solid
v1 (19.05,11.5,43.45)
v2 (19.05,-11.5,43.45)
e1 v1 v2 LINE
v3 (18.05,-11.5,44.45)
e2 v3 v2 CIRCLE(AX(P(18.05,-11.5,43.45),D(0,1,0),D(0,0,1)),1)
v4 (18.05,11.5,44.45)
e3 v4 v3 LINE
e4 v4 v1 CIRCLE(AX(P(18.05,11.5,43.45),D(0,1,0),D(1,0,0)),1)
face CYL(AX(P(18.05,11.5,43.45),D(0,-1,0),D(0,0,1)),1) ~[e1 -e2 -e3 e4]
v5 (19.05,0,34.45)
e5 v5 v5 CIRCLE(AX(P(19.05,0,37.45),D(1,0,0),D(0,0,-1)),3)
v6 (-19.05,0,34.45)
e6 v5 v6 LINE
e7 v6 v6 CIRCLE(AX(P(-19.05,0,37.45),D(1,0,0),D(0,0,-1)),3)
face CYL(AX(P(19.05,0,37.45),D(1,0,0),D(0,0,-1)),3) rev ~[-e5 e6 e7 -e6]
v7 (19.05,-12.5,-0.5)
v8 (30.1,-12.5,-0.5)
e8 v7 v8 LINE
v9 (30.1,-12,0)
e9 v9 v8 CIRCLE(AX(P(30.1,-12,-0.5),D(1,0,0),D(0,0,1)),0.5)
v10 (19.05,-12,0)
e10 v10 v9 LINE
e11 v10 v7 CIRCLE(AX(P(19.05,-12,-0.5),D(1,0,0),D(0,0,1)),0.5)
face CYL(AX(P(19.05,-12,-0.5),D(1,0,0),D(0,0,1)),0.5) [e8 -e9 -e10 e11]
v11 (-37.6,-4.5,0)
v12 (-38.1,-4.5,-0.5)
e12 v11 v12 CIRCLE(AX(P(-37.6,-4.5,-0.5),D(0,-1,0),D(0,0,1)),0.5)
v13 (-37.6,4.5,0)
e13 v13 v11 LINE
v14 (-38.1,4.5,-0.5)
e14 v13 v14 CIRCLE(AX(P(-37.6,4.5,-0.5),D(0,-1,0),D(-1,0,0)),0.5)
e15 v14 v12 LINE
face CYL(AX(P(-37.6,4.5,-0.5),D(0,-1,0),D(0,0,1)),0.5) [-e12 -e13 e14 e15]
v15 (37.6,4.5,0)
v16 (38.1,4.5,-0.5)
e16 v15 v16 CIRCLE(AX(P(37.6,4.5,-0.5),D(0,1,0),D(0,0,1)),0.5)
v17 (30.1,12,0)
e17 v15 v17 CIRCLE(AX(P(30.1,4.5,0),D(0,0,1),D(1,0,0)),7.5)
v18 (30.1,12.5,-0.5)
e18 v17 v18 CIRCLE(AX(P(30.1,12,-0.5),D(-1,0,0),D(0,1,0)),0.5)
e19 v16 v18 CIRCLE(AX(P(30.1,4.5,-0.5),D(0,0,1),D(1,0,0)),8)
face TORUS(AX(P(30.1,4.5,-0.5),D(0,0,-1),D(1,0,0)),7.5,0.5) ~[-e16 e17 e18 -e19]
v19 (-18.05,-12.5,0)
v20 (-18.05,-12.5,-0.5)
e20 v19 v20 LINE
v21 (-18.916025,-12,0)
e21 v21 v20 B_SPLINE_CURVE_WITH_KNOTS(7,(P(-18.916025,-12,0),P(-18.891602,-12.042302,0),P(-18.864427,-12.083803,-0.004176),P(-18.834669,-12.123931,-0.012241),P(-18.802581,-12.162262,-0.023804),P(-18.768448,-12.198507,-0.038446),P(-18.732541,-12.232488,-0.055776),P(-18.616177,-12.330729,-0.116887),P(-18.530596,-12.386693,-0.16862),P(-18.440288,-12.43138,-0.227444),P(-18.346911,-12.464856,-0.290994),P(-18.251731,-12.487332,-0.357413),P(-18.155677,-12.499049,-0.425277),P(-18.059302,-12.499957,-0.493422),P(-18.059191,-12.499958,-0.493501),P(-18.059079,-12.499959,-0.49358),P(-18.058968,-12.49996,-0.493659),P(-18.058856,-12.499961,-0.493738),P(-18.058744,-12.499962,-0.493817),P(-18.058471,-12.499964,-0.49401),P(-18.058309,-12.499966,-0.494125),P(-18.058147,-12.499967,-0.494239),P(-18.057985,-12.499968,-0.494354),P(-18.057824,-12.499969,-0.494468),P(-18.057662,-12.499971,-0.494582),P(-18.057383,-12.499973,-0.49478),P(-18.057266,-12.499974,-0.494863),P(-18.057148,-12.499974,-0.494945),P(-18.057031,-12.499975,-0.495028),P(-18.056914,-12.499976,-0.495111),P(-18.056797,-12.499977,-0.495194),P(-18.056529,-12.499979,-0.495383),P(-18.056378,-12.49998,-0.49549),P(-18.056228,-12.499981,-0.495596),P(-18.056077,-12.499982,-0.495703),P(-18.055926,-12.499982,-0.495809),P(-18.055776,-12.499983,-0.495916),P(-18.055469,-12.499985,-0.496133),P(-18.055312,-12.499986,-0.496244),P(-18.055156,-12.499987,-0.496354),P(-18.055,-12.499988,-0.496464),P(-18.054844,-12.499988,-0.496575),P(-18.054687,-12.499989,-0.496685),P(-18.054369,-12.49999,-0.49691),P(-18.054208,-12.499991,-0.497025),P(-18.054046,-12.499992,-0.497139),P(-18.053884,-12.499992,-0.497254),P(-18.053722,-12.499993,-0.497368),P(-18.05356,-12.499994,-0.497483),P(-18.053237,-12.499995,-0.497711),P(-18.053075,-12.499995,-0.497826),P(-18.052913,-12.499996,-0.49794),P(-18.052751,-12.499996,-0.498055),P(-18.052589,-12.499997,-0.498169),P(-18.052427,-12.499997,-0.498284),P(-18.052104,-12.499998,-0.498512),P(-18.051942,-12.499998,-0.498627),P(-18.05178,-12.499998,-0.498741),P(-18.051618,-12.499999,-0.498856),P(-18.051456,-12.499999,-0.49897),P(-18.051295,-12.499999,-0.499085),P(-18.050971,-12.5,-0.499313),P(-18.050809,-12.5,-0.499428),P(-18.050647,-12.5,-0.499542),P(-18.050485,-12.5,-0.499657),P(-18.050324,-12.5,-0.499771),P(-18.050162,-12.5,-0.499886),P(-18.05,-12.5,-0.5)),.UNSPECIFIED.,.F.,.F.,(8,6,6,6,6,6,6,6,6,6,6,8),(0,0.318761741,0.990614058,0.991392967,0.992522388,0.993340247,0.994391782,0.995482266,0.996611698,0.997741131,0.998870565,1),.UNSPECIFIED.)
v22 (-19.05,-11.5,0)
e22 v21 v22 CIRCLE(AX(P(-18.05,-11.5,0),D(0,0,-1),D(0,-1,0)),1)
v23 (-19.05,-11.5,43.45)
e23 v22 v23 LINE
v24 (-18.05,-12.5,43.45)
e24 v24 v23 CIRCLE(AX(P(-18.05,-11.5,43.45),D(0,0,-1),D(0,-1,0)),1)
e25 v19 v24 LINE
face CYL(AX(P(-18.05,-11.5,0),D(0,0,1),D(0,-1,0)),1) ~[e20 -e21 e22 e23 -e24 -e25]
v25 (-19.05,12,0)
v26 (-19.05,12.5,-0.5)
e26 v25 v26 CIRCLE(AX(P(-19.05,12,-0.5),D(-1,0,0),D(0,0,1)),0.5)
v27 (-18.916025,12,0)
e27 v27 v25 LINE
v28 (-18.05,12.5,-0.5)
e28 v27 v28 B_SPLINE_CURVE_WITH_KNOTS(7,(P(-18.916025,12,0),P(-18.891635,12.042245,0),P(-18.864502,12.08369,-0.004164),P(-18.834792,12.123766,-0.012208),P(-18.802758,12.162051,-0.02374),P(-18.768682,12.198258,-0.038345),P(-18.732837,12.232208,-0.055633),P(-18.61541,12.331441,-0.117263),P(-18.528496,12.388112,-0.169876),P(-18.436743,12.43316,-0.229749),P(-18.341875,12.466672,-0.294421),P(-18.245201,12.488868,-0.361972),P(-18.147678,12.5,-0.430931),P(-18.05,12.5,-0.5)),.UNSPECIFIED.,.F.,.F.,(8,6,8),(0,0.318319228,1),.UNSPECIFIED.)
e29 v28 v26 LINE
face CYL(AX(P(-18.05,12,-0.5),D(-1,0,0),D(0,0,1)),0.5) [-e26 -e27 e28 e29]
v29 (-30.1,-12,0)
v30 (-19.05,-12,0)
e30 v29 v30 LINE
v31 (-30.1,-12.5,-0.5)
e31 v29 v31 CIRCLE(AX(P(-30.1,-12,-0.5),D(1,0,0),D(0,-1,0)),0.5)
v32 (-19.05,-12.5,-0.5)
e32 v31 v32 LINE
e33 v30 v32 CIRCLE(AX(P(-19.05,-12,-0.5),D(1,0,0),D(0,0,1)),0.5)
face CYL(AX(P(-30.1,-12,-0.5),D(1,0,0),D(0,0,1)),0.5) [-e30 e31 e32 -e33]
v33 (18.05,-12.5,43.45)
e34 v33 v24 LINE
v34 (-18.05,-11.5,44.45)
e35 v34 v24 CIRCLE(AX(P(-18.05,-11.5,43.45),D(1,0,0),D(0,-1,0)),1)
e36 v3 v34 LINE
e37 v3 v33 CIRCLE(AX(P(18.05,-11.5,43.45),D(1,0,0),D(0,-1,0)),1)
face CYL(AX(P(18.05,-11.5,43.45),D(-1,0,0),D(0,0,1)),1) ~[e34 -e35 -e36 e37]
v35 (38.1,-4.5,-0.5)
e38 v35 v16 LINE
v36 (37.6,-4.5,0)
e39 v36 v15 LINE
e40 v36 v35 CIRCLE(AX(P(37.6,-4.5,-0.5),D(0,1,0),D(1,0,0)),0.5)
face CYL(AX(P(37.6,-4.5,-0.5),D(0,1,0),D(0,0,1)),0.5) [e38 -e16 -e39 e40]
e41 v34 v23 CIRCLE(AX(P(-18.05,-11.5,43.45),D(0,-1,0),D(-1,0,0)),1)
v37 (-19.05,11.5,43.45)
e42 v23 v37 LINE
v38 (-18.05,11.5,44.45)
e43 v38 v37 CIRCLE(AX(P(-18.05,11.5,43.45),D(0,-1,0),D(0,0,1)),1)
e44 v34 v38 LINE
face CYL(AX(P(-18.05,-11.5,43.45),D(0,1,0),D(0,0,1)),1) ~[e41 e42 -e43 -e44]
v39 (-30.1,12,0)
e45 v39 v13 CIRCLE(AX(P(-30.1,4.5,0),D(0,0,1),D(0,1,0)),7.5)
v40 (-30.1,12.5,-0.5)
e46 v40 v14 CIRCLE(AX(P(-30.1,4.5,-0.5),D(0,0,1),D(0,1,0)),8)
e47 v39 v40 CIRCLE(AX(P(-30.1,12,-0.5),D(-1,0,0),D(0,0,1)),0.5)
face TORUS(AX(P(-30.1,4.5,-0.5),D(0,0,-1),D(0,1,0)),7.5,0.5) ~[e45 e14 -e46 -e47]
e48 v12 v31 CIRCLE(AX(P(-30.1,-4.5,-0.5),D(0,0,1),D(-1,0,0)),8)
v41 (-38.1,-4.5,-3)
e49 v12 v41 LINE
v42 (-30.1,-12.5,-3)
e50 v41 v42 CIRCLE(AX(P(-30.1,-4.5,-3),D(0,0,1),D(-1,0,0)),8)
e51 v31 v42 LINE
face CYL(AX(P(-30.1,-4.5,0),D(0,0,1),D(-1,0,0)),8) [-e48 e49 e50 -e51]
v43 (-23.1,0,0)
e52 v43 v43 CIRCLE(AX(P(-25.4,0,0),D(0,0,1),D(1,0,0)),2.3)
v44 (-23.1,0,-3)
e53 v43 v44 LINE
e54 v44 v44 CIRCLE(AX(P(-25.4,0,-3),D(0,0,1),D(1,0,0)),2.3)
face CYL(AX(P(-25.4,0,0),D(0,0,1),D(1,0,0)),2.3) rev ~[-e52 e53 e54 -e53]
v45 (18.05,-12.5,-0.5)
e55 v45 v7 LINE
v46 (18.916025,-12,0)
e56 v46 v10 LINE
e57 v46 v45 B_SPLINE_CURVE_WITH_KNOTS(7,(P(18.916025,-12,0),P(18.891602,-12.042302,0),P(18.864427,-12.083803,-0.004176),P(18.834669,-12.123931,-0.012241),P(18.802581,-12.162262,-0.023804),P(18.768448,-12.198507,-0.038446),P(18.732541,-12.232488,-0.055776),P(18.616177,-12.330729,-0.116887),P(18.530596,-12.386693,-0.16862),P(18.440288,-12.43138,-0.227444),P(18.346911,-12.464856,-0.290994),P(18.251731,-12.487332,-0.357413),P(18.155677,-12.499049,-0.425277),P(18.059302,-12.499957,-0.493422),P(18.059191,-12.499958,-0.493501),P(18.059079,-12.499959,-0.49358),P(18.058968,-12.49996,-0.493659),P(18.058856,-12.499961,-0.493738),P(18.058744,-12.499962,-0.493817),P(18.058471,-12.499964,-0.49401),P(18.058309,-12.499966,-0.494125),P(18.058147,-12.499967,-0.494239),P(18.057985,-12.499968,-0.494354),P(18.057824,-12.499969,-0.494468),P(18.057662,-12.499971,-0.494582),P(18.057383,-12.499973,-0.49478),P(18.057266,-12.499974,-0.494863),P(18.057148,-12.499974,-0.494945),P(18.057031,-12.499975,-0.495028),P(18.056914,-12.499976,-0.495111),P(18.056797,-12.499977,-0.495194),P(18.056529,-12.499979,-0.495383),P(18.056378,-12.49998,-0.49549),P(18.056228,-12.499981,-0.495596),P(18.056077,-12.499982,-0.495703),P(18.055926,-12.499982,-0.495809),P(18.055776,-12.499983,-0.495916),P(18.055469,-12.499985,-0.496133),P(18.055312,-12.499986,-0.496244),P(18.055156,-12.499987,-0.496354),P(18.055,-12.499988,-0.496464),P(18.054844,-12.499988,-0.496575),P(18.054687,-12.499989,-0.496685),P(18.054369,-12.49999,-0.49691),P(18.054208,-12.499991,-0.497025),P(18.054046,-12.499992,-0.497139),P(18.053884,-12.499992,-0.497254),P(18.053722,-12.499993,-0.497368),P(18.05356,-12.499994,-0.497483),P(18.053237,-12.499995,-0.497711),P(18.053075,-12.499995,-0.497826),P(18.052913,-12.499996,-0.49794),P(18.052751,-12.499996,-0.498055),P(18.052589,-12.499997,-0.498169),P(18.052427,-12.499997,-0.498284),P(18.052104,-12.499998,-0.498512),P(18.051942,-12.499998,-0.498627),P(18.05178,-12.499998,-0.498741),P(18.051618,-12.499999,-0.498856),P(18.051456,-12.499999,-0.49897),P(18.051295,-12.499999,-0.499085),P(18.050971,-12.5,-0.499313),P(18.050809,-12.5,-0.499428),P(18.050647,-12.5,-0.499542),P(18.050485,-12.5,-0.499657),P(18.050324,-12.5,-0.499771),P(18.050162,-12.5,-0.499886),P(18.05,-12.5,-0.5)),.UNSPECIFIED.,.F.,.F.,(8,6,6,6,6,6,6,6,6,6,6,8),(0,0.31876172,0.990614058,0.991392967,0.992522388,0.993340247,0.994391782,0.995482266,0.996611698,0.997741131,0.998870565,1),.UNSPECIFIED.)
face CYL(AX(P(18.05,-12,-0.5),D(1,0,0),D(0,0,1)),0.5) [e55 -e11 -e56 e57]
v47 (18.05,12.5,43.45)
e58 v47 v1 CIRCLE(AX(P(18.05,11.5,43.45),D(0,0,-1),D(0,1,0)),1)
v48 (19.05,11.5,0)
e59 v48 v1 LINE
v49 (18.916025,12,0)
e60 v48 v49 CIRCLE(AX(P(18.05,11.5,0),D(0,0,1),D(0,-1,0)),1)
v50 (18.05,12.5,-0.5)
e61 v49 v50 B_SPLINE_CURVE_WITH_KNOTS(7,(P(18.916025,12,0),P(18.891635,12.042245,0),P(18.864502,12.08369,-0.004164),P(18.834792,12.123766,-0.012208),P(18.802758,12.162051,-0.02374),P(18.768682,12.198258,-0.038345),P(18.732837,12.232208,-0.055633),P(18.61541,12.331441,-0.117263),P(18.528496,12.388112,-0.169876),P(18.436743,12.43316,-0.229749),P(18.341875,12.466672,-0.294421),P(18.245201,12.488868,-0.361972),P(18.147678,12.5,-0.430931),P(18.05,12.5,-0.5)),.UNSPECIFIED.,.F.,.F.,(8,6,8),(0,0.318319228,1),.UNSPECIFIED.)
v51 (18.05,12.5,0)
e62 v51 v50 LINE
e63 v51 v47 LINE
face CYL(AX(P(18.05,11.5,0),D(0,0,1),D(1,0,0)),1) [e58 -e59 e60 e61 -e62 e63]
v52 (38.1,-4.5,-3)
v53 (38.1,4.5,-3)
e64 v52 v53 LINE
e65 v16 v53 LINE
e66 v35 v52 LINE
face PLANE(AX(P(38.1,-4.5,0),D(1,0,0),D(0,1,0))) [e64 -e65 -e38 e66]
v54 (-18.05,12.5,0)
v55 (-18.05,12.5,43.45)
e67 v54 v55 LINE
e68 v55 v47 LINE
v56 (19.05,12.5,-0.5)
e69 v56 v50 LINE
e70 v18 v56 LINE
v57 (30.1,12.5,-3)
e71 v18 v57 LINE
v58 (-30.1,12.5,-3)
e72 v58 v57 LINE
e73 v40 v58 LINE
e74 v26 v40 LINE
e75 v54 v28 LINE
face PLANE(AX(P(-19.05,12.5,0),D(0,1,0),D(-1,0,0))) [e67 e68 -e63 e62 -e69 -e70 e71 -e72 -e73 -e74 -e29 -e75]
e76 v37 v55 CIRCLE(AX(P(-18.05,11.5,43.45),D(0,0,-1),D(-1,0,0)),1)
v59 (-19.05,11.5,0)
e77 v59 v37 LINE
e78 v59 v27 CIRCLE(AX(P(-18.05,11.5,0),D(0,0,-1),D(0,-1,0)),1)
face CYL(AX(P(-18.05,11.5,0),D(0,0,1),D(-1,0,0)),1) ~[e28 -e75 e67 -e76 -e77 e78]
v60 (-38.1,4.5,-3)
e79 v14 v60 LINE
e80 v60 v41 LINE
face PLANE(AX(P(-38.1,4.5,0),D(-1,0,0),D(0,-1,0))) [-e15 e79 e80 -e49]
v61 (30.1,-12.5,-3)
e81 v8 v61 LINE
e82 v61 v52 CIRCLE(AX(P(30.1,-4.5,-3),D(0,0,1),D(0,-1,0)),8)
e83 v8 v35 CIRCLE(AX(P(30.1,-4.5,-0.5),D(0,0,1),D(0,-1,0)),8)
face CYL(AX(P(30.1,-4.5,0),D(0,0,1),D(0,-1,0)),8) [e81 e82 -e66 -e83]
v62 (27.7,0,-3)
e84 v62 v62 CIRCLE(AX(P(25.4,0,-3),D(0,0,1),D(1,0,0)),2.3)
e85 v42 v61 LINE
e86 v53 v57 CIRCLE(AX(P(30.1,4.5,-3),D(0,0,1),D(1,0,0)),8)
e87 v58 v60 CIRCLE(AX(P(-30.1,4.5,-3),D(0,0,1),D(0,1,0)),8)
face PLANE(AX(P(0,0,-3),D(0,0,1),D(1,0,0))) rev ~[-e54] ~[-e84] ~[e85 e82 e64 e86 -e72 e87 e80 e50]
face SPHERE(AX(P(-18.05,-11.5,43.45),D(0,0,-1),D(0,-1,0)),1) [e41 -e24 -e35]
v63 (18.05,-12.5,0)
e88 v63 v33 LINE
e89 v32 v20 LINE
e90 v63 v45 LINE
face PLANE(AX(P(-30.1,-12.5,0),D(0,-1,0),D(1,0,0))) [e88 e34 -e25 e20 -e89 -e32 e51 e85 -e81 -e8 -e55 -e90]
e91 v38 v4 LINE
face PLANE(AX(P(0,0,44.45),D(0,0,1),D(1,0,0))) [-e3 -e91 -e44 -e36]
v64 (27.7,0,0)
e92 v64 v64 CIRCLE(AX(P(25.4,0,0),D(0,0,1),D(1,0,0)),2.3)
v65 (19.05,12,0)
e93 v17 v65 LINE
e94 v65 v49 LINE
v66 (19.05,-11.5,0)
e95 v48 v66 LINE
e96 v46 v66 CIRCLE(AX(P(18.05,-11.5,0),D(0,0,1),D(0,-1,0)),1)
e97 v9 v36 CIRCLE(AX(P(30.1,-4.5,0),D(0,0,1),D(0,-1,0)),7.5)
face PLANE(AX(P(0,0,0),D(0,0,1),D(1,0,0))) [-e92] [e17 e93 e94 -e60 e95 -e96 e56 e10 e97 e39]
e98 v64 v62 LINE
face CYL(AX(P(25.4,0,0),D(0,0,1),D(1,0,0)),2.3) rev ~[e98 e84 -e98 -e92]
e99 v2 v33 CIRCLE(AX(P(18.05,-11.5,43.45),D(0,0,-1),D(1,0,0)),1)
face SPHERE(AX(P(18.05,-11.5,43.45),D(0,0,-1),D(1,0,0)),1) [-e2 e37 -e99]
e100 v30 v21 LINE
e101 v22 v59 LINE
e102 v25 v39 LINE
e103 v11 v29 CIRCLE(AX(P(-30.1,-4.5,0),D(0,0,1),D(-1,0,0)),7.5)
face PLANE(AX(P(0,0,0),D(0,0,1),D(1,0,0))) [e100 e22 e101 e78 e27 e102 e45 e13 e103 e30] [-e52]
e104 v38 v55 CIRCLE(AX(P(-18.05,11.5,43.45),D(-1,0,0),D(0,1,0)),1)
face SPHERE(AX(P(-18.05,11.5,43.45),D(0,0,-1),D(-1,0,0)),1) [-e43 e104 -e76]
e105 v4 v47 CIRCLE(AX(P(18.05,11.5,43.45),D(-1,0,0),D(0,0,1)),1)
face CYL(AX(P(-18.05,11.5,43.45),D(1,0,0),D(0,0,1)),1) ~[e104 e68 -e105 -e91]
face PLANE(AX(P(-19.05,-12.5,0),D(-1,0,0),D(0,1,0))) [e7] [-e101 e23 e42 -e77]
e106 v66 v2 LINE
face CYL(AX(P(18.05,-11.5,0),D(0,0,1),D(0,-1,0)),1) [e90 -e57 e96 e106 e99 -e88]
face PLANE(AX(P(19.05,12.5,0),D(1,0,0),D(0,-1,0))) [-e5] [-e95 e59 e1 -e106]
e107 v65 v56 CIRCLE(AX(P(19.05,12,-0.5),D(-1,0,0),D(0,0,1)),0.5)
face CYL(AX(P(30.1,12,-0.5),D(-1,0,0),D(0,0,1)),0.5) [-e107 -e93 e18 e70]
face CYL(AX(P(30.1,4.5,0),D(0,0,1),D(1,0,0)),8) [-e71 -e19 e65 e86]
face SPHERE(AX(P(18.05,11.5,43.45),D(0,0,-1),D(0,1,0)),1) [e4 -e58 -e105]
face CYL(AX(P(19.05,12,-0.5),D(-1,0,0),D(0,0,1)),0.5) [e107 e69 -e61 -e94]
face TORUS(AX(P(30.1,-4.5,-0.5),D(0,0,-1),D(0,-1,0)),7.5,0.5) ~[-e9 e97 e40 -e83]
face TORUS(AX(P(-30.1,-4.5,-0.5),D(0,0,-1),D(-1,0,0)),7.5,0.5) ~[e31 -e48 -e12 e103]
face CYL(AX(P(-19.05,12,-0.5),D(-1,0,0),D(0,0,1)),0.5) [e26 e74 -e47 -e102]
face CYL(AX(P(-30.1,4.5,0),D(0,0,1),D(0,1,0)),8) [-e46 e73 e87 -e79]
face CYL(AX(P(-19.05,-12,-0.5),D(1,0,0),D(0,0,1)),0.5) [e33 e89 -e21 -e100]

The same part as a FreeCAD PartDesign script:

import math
import FreeCAD as App
import Part
import Sketcher


def edges_at(feature, points):
    """Names of the edges that pass closest to the given points."""
    edges = feature.Shape.Edges
    near = lambda p: min(range(len(edges)), key=lambda i: edges[i].distToShape(Part.Vertex(*p))[0])
    return sorted({f"Edge{near(p) + 1}" for p in points})

doc = App.newDocument("Part")
body = doc.addObject("PartDesign::Body", "Body")

sketch1 = body.newObject("Sketcher::SketchObject", "Sketch")
sketch1.AttachmentSupport = (doc.getObject("XY_Plane"), [""])
sketch1.MapMode = "FlatFace"
sketch1.addGeometry([
    Part.ArcOfCircle(Part.Circle(App.Vector(-30.1, -4.5, 0), App.Vector(0, 0, 1), 8), math.radians(180), math.radians(270)),
    Part.LineSegment(App.Vector(-30.1, -12.5, 0), App.Vector(30.1, -12.5, 0)),
    Part.ArcOfCircle(Part.Circle(App.Vector(30.1, -4.5, 0), App.Vector(0, 0, 1), 8), math.radians(-90), math.radians(0)),
    Part.LineSegment(App.Vector(38.1, -4.5, 0), App.Vector(38.1, 4.5, 0)),
    Part.ArcOfCircle(Part.Circle(App.Vector(30.1, 4.5, 0), App.Vector(0, 0, 1), 8), math.radians(0), math.radians(90)),
    Part.LineSegment(App.Vector(30.1, 12.5, 0), App.Vector(-30.1, 12.5, 0)),
    Part.ArcOfCircle(Part.Circle(App.Vector(-30.1, 4.5, 0), App.Vector(0, 0, 1), 8), math.radians(90), math.radians(180)),
    Part.LineSegment(App.Vector(-38.1, 4.5, 0), App.Vector(-38.1, -4.5, 0)),
    Part.Circle(App.Vector(-25.4, 0, 0), App.Vector(0, 0, 1), 2.3),
    Part.Circle(App.Vector(25.4, 0, 0), App.Vector(0, 0, 1), 2.3),
], False)
sketch1.addConstraint([
    Sketcher.Constraint("Tangent", 0, 2, 1, 1),
    Sketcher.Constraint("Tangent", 1, 2, 2, 1),
    Sketcher.Constraint("Tangent", 2, 2, 3, 1),
    Sketcher.Constraint("Tangent", 3, 2, 4, 1),
    Sketcher.Constraint("Tangent", 4, 2, 5, 1),
    Sketcher.Constraint("Tangent", 5, 2, 6, 1),
    Sketcher.Constraint("Tangent", 6, 2, 7, 1),
    Sketcher.Constraint("Tangent", 7, 2, 0, 1),
    Sketcher.Constraint("Horizontal", 1),
    Sketcher.Constraint("Vertical", 3),
    Sketcher.Constraint("Horizontal", 5),
    Sketcher.Constraint("Vertical", 7),
    Sketcher.Constraint("Equal", 0, 2),
    Sketcher.Constraint("Equal", 2, 4),
    Sketcher.Constraint("Equal", 4, 6),
    Sketcher.Constraint("Equal", 8, 9),
    Sketcher.Constraint("Symmetric", 0, 3, 4, 3, -1, 1),
    Sketcher.Constraint("Symmetric", 8, 3, 9, 3, -1, 1),
    Sketcher.Constraint("PointOnObject", 8, 3, -1),
    Sketcher.Constraint("Radius", 0, 8.0),
    Sketcher.Constraint("Diameter", 8, 4.6),
    Sketcher.Constraint("DistanceY", 0, 2, 5, 2, 25.0),
    Sketcher.Constraint("DistanceX", -1, 1, 2, 2, 38.1),
    Sketcher.Constraint("DistanceX", 8, 3, 9, 3, 50.8),
])
pad1 = body.newObject("PartDesign::Pad", "Pad")
pad1.Profile = sketch1
pad1.Length = 3
pad1.Reversed = True

sketch2 = body.newObject("Sketcher::SketchObject", "Sketch001")
sketch2.AttachmentSupport = (doc.getObject("XY_Plane"), [""])
sketch2.MapMode = "FlatFace"
sketch2.addGeometry([
    Part.LineSegment(App.Vector(-19, 12, 0), App.Vector(-19, -12, 0)),
    Part.LineSegment(App.Vector(-19, -12, 0), App.Vector(19, -12, 0)),
    Part.LineSegment(App.Vector(19, -12, 0), App.Vector(19, 12, 0)),
    Part.LineSegment(App.Vector(19, 12, 0), App.Vector(-19, 12, 0)),
], False)
sketch2.addConstraint([
    Sketcher.Constraint("Coincident", 0, 2, 1, 1),
    Sketcher.Constraint("Coincident", 1, 2, 2, 1),
    Sketcher.Constraint("Coincident", 2, 2, 3, 1),
    Sketcher.Constraint("Coincident", 3, 2, 0, 1),
    Sketcher.Constraint("Vertical", 0),
    Sketcher.Constraint("Horizontal", 1),
    Sketcher.Constraint("Vertical", 2),
    Sketcher.Constraint("Horizontal", 3),
    Sketcher.Constraint("Symmetric", 0, 2, 2, 2, -1, 1),
    Sketcher.Constraint("DistanceY", 0, 2, 0, 1, 25.0),
    Sketcher.Constraint("DistanceX", 1, 1, 1, 2, 38.1),
])
pad2 = body.newObject("PartDesign::Pad", "Pad001")
pad2.Profile = sketch2
pad2.Length = 44.45

sketch3 = body.newObject("Sketcher::SketchObject", "Sketch002")
sketch3.AttachmentSupport = (doc.getObject("YZ_Plane"), [""])
sketch3.MapMode = "FlatFace"
sketch3.AttachmentOffset = App.Placement(App.Vector(0, 0, 19.05), App.Rotation())
sketch3.addGeometry(Part.Circle(App.Vector(0, 37.5, 0), App.Vector(0, 0, 1), 3), False)
sketch3.addConstraint([
    Sketcher.Constraint("PointOnObject", 0, 3, -2),
    Sketcher.Constraint("Diameter", 0, 6.0),
    Sketcher.Constraint("DistanceY", -1, 1, 0, 3, 37.45),
])
pocket1 = body.newObject("PartDesign::Pocket", "Pocket")
pocket1.Profile = sketch3
pocket1.Length = 44.45
doc.recompute()

fillet = body.newObject("PartDesign::Fillet", "Fillet")
fillet.Base = (pocket1, edges_at(pocket1, [
    (19.05, -12.5, 22.225),
    (19.05, 12.5, 22.225),
    (-19.05, 12.5, 22.225),
    (-19.05, -12.5, 22.225),
]))
fillet.Radius = 1
doc.recompute()

fillet2 = body.newObject("PartDesign::Fillet", "Fillet001")
fillet2.Base = (fillet, edges_at(fillet, [
    (-18.757, -12.207, 44.45),
    (0, -12.5, 44.45),
    (18.757, -12.207, 44.45),
    (19.05, 0, 44.45),
    (18.757, 12.207, 44.45),
    (0, 12.5, 44.45),
    (-18.757, 12.207, 44.45),
    (-19.05, 0, 44.45),
]))
fillet2.Radius = 1
doc.recompute()

fillet3 = body.newObject("PartDesign::Fillet", "Fillet002")
fillet3.Base = (fillet2, edges_at(fillet2, [
    (-35.757, -10.157, 0),
    (-18.55, -12.5, 0),
    (-24.575, -12.5, 0),
    (-35.757, 10.157, 0),
    (-18.55, 12.5, 0),
    (-24.575, 12.5, 0),
    (-38.1, 0, 0),
    (38.1, 0, 0),
    (35.757, 10.157, 0),
    (18.55, 12.5, 0),
    (24.575, 12.5, 0),
    (18.55, -12.5, 0),
    (24.575, -12.5, 0),
    (35.757, -10.157, 0),
]))
fillet3.Radius = 0.5

doc.recompute()
